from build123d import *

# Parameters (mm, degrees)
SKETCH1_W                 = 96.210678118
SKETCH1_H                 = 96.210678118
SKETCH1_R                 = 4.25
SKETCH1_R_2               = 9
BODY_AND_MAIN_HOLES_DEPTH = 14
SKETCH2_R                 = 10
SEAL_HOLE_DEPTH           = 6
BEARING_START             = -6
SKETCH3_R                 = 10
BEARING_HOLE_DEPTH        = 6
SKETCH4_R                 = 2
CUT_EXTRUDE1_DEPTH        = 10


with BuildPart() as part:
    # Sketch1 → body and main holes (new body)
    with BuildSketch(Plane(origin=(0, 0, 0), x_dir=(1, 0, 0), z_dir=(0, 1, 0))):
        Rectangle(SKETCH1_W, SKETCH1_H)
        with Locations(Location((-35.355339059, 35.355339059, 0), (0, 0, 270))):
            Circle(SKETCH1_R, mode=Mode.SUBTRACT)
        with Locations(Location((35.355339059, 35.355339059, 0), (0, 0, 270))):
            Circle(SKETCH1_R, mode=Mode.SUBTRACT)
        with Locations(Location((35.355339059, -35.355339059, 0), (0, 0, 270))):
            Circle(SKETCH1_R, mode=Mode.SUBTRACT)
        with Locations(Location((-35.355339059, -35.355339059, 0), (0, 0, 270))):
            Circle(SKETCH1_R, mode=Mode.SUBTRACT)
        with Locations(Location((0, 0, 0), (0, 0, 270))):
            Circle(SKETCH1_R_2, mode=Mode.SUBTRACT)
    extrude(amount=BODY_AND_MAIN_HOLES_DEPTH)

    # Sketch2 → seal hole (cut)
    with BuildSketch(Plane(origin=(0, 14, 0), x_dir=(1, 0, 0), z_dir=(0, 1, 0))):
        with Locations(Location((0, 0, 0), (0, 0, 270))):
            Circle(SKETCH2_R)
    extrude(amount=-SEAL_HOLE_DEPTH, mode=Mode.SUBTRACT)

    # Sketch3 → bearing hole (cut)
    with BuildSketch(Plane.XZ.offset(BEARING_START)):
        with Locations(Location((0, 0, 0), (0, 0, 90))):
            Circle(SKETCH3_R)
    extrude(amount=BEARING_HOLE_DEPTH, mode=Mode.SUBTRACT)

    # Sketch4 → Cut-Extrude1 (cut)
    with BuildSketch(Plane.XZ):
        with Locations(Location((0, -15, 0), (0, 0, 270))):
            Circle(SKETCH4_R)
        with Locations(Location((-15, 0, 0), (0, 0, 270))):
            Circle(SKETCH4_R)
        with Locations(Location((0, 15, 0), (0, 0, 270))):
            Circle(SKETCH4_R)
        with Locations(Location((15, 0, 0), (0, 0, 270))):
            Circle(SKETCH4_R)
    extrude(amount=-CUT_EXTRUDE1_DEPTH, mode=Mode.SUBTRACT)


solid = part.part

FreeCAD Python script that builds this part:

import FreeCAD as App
import Part
import Sketcher
from FreeCAD import Vector

doc = App.newDocument("Part")
params = doc.addObject("Spreadsheet::Sheet", "Params")
for row, (alias, value) in enumerate([
    ("sketch1_diameter", "18 mm"),
    ("sketch1_diameter2", "8.5 mm"),
    ("pad1_length", "14 mm"),
    ("sketch2_diameter", "20 mm"),
    ("pocket1_length", "6 mm"),
    ("sketch3_diameter", "20 mm"),
    ("pocket2_length", "6 mm"),
    ("sketch4_diameter", "4 mm"),
    ("pocket3_length", "10 mm"),
], start=1):
    params.set(f"A{row}", alias)
    params.set(f"B{row}", "=" + value)
    params.setAlias(f"B{row}", alias)

body = doc.addObject("PartDesign::Body", "Body")

sketch1 = body.newObject("Sketcher::SketchObject", "Sketch")
sketch1.AttachmentSupport = (doc.getObject("XZ_Plane"), [""])
sketch1.MapMode = "FlatFace"
sketch1.addGeometry([
    Part.LineSegment(Vector(-48.105339, -48.105339, 0), Vector(-48.105339, 48.105339, 0)),
    Part.LineSegment(Vector(-48.105339, 48.105339, 0), Vector(48.105339, 48.105339, 0)),
    Part.LineSegment(Vector(48.105339, 48.105339, 0), Vector(48.105339, -48.105339, 0)),
    Part.LineSegment(Vector(48.105339, -48.105339, 0), Vector(-48.105339, -48.105339, 0)),
    Part.Circle(Vector(-35.355339, 35.355339, 0), Vector(0, 0, 1), 4.25),
    Part.Circle(Vector(35.355339, 35.355339, 0), Vector(0, 0, 1), 4.25),
    Part.Circle(Vector(-35.355339, -35.355339, 0), Vector(0, 0, 1), 4.25),
    Part.Circle(Vector(0, 0, 0), Vector(0, 0, 1), 9),
    Part.Circle(Vector(35.355339, -35.355339, 0), Vector(0, 0, 1), 4.25),
], False)
sketch1.addConstraint([
    Sketcher.Constraint("Coincident", 0, 2, 1, 1),
    Sketcher.Constraint("Coincident", 1, 2, 2, 1),
    Sketcher.Constraint("Coincident", 2, 2, 3, 1),
    Sketcher.Constraint("Coincident", 3, 2, 0, 1),
    Sketcher.Constraint("Vertical", 0),
    Sketcher.Constraint("Horizontal", 1),
    Sketcher.Constraint("Vertical", 2),
    Sketcher.Constraint("Horizontal", 3),
    Sketcher.Constraint("Coincident", 7, 3, -1, 1),
    Sketcher.Constraint("Equal", 4, 5),
    Sketcher.Constraint("Equal", 5, 6),
    Sketcher.Constraint("Equal", 6, 8),
    Sketcher.Constraint("Symmetric", 5, 3, 6, 3, -1, 1),
    Sketcher.Constraint("Symmetric", 4, 3, 8, 3, -1, 1),
    Sketcher.Constraint("Symmetric", 0, 2, 2, 2, -1, 1),
    Sketcher.Constraint("Symmetric", 4, 3, 5, 3, -2),
    Sketcher.Constraint("Equal", 3, 0),
    Sketcher.Constraint("Diameter", 7, 18.0),
    Sketcher.Constraint("Diameter", 4, 8.5),
    Sketcher.Constraint("DistanceX", 0, 2, 4, 3, 12.75),
    Sketcher.Constraint("DistanceY", 4, 3, 0, 2, 12.75),
    Sketcher.Constraint("DistanceX", 1, 1, 1, 2, 96.210678),
])
sketch1.setExpression("Constraints[17]", "Params.sketch1_diameter")
sketch1.setExpression("Constraints[18]", "Params.sketch1_diameter2")
pad1 = body.newObject("PartDesign::Pad", "Pad")
pad1.Profile = sketch1
pad1.setExpression("Length", "Params.pad1_length")
pad1.Reversed = True

sketch2 = body.newObject("Sketcher::SketchObject", "Sketch001")
sketch2.AttachmentSupport = (doc.getObject("XZ_Plane"), [""])
sketch2.MapMode = "FlatFace"
sketch2.AttachmentOffset = App.Placement(Vector(0, 0, -14), App.Rotation())
sketch2.addGeometry(Part.Circle(Vector(0, 0, 0), Vector(0, 0, 1), 10), False)
sketch2.addConstraint([
    Sketcher.Constraint("Coincident", 0, 3, -1, 1),
    Sketcher.Constraint("Diameter", 0, 20.0),
])
sketch2.setExpression("Constraints[1]", "Params.sketch2_diameter")
pocket1 = body.newObject("PartDesign::Pocket", "Pocket")
pocket1.Profile = sketch2
pocket1.setExpression("Length", "Params.pocket1_length")
pocket1.Reversed = True

sketch3 = body.newObject("Sketcher::SketchObject", "Sketch002")
sketch3.AttachmentSupport = (doc.getObject("XZ_Plane"), [""])
sketch3.MapMode = "FlatFace"
sketch3.AttachmentOffset = App.Placement(Vector(0, 0, -6), App.Rotation())
sketch3.addGeometry(Part.Circle(Vector(0, 0, 0), Vector(0, 0, 1), 10), False)
sketch3.addConstraint([
    Sketcher.Constraint("Coincident", 0, 3, -1, 1),
    Sketcher.Constraint("Diameter", 0, 20.0),
])
sketch3.setExpression("Constraints[1]", "Params.sketch3_diameter")
pocket2 = body.newObject("PartDesign::Pocket", "Pocket001")
pocket2.Profile = sketch3
pocket2.setExpression("Length", "Params.pocket2_length")
pocket2.Reversed = True

sketch4 = body.newObject("Sketcher::SketchObject", "Sketch003")
sketch4.AttachmentSupport = (doc.getObject("XZ_Plane"), [""])
sketch4.MapMode = "FlatFace"
sketch4.addGeometry([
    Part.Circle(Vector(0, -15, 0), Vector(0, 0, 1), 2),
    Part.Circle(Vector(-15, 0, 0), Vector(0, 0, 1), 2),
    Part.Circle(Vector(0, 15, 0), Vector(0, 0, 1), 2),
    Part.Circle(Vector(15, 0, 0), Vector(0, 0, 1), 2),
], False)
sketch4.addConstraint([
    Sketcher.Constraint("Equal", 0, 1),
    Sketcher.Constraint("Equal", 1, 2),
    Sketcher.Constraint("Equal", 2, 3),
    Sketcher.Constraint("Symmetric", 0, 3, 2, 3, -1, 1),
    Sketcher.Constraint("Symmetric", 1, 3, 3, 3, -1, 1),
    Sketcher.Constraint("PointOnObject", 0, 3, -2),
    Sketcher.Constraint("PointOnObject", 1, 3, -1),
    Sketcher.Constraint("Diameter", 0, 4.0),
    Sketcher.Constraint("DistanceY", 0, 3, -1, 1, 15.0),
    Sketcher.Constraint("DistanceX", 1, 3, -1, 1, 15.0),
])
sketch4.setExpression("Constraints[7]", "Params.sketch4_diameter")
pocket3 = body.newObject("PartDesign::Pocket", "Pocket002")
pocket3.Profile = sketch4
pocket3.setExpression("Length", "Params.pocket3_length")

doc.recompute()
